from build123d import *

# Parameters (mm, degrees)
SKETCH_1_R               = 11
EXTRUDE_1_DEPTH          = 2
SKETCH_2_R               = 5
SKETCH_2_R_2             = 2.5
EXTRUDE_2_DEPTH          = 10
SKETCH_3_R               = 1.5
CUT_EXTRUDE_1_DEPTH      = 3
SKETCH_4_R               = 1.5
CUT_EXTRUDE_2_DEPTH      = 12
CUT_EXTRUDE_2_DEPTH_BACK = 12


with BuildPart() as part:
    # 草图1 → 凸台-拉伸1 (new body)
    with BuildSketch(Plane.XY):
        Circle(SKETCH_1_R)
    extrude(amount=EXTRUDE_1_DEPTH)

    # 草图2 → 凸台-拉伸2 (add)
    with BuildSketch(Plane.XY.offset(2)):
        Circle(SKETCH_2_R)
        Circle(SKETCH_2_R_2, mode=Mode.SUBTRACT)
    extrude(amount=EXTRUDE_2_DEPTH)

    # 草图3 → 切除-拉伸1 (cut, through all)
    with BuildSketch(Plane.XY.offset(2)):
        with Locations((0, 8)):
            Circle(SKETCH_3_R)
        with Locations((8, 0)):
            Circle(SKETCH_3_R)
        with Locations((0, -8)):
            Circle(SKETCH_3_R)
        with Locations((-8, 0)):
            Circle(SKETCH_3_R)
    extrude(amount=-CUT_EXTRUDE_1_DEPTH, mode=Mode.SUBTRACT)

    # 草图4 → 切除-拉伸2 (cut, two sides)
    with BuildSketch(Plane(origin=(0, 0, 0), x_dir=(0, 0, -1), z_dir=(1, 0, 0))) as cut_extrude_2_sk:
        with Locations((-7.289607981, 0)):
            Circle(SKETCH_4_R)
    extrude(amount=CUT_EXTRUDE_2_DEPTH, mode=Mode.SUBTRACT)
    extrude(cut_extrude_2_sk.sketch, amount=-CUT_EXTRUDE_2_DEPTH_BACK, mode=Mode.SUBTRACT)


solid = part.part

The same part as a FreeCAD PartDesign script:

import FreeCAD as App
import Part
import Sketcher

V = App.Vector
Q = App.Units.Quantity

doc = App.newDocument("Part")
body = doc.addObject("PartDesign::Body", "Body")

sketch1 = body.newObject("Sketcher::SketchObject", "Sketch")
sketch1.AttachmentSupport = (doc.getObject("XY_Plane"), [""])
sketch1.MapMode = "FlatFace"
sketch1.addGeometry(Part.Circle(V(0, 0, 0), V(0, 0, 1), 11), False)
sketch1.addConstraint(Sketcher.Constraint("Coincident", 0, 3, -1, 1))
sketch1.addConstraint(Sketcher.Constraint("Diameter", 0, Q("22 mm")))
pad1 = body.newObject("PartDesign::Pad", "Pad")
pad1.Profile = sketch1
pad1.Length = 2

sketch2 = body.newObject("Sketcher::SketchObject", "Sketch001")
sketch2.AttachmentSupport = (doc.getObject("XY_Plane"), [""])
sketch2.MapMode = "FlatFace"
sketch2.AttachmentOffset = App.Placement(V(0, 0, 2), App.Rotation())
sketch2.addGeometry(Part.Circle(V(0, 0, 0), V(0, 0, 1), 5), False)
sketch2.addGeometry(Part.Circle(V(0, 0, 0), V(0, 0, 1), 2.5), False)
sketch2.addConstraint(Sketcher.Constraint("Coincident", 0, 3, -1, 1))
sketch2.addConstraint(Sketcher.Constraint("Coincident", 1, 3, -1, 1))
sketch2.addConstraint(Sketcher.Constraint("Diameter", 0, Q("10 mm")))
sketch2.addConstraint(Sketcher.Constraint("Diameter", 1, Q("5 mm")))
pad2 = body.newObject("PartDesign::Pad", "Pad001")
pad2.Profile = sketch2
pad2.Length = 10

sketch3 = body.newObject("Sketcher::SketchObject", "Sketch002")
sketch3.AttachmentSupport = (doc.getObject("XY_Plane"), [""])
sketch3.MapMode = "FlatFace"
sketch3.AttachmentOffset = App.Placement(V(0, 0, 2), App.Rotation())
sketch3.addGeometry(Part.Circle(V(0, 8, 0), V(0, 0, 1), 1.5), False)
sketch3.addGeometry(Part.Circle(V(8, 0, 0), V(0, 0, 1), 1.5), False)
sketch3.addGeometry(Part.Circle(V(0, -8, 0), V(0, 0, 1), 1.5), False)
sketch3.addGeometry(Part.Circle(V(-8, 0, 0), V(0, 0, 1), 1.5), False)
sketch3.addConstraint(Sketcher.Constraint("Equal", 0, 1))
sketch3.addConstraint(Sketcher.Constraint("Equal", 1, 2))
sketch3.addConstraint(Sketcher.Constraint("Equal", 2, 3))
sketch3.addConstraint(Sketcher.Constraint("Symmetric", 0, 3, 2, 3, -1, 1))
sketch3.addConstraint(Sketcher.Constraint("Symmetric", 1, 3, 3, 3, -1, 1))
sketch3.addConstraint(Sketcher.Constraint("PointOnObject", 0, 3, -2))
sketch3.addConstraint(Sketcher.Constraint("PointOnObject", 1, 3, -1))
sketch3.addConstraint(Sketcher.Constraint("Diameter", 0, Q("3 mm")))
sketch3.addConstraint(Sketcher.Constraint("DistanceY", -1, 1, 0, 3, Q("8 mm")))
sketch3.addConstraint(Sketcher.Constraint("DistanceX", -1, 1, 1, 3, Q("8 mm")))
pocket1 = body.newObject("PartDesign::Pocket", "Pocket")
pocket1.Profile = sketch3
pocket1.Type = "ThroughAll"

sketch4 = body.newObject("Sketcher::SketchObject", "Sketch003")
sketch4.AttachmentSupport = (doc.getObject("YZ_Plane"), [""])
sketch4.MapMode = "FlatFace"
sketch4.addGeometry(Part.Circle(V(0, 7.289608, 0), V(0, 0, 1), 1.5), False)
sketch4.addConstraint(Sketcher.Constraint("PointOnObject", 0, 3, -2))
sketch4.addConstraint(Sketcher.Constraint("Diameter", 0, Q("3 mm")))
sketch4.addConstraint(Sketcher.Constraint("DistanceY", -1, 1, 0, 3, Q("7.289608 mm")))
pocket2 = body.newObject("PartDesign::Pocket", "Pocket001")
pocket2.Profile = sketch4
pocket2.Type = "ThroughAll"
pocket2.Midplane = True

doc.recompute()
